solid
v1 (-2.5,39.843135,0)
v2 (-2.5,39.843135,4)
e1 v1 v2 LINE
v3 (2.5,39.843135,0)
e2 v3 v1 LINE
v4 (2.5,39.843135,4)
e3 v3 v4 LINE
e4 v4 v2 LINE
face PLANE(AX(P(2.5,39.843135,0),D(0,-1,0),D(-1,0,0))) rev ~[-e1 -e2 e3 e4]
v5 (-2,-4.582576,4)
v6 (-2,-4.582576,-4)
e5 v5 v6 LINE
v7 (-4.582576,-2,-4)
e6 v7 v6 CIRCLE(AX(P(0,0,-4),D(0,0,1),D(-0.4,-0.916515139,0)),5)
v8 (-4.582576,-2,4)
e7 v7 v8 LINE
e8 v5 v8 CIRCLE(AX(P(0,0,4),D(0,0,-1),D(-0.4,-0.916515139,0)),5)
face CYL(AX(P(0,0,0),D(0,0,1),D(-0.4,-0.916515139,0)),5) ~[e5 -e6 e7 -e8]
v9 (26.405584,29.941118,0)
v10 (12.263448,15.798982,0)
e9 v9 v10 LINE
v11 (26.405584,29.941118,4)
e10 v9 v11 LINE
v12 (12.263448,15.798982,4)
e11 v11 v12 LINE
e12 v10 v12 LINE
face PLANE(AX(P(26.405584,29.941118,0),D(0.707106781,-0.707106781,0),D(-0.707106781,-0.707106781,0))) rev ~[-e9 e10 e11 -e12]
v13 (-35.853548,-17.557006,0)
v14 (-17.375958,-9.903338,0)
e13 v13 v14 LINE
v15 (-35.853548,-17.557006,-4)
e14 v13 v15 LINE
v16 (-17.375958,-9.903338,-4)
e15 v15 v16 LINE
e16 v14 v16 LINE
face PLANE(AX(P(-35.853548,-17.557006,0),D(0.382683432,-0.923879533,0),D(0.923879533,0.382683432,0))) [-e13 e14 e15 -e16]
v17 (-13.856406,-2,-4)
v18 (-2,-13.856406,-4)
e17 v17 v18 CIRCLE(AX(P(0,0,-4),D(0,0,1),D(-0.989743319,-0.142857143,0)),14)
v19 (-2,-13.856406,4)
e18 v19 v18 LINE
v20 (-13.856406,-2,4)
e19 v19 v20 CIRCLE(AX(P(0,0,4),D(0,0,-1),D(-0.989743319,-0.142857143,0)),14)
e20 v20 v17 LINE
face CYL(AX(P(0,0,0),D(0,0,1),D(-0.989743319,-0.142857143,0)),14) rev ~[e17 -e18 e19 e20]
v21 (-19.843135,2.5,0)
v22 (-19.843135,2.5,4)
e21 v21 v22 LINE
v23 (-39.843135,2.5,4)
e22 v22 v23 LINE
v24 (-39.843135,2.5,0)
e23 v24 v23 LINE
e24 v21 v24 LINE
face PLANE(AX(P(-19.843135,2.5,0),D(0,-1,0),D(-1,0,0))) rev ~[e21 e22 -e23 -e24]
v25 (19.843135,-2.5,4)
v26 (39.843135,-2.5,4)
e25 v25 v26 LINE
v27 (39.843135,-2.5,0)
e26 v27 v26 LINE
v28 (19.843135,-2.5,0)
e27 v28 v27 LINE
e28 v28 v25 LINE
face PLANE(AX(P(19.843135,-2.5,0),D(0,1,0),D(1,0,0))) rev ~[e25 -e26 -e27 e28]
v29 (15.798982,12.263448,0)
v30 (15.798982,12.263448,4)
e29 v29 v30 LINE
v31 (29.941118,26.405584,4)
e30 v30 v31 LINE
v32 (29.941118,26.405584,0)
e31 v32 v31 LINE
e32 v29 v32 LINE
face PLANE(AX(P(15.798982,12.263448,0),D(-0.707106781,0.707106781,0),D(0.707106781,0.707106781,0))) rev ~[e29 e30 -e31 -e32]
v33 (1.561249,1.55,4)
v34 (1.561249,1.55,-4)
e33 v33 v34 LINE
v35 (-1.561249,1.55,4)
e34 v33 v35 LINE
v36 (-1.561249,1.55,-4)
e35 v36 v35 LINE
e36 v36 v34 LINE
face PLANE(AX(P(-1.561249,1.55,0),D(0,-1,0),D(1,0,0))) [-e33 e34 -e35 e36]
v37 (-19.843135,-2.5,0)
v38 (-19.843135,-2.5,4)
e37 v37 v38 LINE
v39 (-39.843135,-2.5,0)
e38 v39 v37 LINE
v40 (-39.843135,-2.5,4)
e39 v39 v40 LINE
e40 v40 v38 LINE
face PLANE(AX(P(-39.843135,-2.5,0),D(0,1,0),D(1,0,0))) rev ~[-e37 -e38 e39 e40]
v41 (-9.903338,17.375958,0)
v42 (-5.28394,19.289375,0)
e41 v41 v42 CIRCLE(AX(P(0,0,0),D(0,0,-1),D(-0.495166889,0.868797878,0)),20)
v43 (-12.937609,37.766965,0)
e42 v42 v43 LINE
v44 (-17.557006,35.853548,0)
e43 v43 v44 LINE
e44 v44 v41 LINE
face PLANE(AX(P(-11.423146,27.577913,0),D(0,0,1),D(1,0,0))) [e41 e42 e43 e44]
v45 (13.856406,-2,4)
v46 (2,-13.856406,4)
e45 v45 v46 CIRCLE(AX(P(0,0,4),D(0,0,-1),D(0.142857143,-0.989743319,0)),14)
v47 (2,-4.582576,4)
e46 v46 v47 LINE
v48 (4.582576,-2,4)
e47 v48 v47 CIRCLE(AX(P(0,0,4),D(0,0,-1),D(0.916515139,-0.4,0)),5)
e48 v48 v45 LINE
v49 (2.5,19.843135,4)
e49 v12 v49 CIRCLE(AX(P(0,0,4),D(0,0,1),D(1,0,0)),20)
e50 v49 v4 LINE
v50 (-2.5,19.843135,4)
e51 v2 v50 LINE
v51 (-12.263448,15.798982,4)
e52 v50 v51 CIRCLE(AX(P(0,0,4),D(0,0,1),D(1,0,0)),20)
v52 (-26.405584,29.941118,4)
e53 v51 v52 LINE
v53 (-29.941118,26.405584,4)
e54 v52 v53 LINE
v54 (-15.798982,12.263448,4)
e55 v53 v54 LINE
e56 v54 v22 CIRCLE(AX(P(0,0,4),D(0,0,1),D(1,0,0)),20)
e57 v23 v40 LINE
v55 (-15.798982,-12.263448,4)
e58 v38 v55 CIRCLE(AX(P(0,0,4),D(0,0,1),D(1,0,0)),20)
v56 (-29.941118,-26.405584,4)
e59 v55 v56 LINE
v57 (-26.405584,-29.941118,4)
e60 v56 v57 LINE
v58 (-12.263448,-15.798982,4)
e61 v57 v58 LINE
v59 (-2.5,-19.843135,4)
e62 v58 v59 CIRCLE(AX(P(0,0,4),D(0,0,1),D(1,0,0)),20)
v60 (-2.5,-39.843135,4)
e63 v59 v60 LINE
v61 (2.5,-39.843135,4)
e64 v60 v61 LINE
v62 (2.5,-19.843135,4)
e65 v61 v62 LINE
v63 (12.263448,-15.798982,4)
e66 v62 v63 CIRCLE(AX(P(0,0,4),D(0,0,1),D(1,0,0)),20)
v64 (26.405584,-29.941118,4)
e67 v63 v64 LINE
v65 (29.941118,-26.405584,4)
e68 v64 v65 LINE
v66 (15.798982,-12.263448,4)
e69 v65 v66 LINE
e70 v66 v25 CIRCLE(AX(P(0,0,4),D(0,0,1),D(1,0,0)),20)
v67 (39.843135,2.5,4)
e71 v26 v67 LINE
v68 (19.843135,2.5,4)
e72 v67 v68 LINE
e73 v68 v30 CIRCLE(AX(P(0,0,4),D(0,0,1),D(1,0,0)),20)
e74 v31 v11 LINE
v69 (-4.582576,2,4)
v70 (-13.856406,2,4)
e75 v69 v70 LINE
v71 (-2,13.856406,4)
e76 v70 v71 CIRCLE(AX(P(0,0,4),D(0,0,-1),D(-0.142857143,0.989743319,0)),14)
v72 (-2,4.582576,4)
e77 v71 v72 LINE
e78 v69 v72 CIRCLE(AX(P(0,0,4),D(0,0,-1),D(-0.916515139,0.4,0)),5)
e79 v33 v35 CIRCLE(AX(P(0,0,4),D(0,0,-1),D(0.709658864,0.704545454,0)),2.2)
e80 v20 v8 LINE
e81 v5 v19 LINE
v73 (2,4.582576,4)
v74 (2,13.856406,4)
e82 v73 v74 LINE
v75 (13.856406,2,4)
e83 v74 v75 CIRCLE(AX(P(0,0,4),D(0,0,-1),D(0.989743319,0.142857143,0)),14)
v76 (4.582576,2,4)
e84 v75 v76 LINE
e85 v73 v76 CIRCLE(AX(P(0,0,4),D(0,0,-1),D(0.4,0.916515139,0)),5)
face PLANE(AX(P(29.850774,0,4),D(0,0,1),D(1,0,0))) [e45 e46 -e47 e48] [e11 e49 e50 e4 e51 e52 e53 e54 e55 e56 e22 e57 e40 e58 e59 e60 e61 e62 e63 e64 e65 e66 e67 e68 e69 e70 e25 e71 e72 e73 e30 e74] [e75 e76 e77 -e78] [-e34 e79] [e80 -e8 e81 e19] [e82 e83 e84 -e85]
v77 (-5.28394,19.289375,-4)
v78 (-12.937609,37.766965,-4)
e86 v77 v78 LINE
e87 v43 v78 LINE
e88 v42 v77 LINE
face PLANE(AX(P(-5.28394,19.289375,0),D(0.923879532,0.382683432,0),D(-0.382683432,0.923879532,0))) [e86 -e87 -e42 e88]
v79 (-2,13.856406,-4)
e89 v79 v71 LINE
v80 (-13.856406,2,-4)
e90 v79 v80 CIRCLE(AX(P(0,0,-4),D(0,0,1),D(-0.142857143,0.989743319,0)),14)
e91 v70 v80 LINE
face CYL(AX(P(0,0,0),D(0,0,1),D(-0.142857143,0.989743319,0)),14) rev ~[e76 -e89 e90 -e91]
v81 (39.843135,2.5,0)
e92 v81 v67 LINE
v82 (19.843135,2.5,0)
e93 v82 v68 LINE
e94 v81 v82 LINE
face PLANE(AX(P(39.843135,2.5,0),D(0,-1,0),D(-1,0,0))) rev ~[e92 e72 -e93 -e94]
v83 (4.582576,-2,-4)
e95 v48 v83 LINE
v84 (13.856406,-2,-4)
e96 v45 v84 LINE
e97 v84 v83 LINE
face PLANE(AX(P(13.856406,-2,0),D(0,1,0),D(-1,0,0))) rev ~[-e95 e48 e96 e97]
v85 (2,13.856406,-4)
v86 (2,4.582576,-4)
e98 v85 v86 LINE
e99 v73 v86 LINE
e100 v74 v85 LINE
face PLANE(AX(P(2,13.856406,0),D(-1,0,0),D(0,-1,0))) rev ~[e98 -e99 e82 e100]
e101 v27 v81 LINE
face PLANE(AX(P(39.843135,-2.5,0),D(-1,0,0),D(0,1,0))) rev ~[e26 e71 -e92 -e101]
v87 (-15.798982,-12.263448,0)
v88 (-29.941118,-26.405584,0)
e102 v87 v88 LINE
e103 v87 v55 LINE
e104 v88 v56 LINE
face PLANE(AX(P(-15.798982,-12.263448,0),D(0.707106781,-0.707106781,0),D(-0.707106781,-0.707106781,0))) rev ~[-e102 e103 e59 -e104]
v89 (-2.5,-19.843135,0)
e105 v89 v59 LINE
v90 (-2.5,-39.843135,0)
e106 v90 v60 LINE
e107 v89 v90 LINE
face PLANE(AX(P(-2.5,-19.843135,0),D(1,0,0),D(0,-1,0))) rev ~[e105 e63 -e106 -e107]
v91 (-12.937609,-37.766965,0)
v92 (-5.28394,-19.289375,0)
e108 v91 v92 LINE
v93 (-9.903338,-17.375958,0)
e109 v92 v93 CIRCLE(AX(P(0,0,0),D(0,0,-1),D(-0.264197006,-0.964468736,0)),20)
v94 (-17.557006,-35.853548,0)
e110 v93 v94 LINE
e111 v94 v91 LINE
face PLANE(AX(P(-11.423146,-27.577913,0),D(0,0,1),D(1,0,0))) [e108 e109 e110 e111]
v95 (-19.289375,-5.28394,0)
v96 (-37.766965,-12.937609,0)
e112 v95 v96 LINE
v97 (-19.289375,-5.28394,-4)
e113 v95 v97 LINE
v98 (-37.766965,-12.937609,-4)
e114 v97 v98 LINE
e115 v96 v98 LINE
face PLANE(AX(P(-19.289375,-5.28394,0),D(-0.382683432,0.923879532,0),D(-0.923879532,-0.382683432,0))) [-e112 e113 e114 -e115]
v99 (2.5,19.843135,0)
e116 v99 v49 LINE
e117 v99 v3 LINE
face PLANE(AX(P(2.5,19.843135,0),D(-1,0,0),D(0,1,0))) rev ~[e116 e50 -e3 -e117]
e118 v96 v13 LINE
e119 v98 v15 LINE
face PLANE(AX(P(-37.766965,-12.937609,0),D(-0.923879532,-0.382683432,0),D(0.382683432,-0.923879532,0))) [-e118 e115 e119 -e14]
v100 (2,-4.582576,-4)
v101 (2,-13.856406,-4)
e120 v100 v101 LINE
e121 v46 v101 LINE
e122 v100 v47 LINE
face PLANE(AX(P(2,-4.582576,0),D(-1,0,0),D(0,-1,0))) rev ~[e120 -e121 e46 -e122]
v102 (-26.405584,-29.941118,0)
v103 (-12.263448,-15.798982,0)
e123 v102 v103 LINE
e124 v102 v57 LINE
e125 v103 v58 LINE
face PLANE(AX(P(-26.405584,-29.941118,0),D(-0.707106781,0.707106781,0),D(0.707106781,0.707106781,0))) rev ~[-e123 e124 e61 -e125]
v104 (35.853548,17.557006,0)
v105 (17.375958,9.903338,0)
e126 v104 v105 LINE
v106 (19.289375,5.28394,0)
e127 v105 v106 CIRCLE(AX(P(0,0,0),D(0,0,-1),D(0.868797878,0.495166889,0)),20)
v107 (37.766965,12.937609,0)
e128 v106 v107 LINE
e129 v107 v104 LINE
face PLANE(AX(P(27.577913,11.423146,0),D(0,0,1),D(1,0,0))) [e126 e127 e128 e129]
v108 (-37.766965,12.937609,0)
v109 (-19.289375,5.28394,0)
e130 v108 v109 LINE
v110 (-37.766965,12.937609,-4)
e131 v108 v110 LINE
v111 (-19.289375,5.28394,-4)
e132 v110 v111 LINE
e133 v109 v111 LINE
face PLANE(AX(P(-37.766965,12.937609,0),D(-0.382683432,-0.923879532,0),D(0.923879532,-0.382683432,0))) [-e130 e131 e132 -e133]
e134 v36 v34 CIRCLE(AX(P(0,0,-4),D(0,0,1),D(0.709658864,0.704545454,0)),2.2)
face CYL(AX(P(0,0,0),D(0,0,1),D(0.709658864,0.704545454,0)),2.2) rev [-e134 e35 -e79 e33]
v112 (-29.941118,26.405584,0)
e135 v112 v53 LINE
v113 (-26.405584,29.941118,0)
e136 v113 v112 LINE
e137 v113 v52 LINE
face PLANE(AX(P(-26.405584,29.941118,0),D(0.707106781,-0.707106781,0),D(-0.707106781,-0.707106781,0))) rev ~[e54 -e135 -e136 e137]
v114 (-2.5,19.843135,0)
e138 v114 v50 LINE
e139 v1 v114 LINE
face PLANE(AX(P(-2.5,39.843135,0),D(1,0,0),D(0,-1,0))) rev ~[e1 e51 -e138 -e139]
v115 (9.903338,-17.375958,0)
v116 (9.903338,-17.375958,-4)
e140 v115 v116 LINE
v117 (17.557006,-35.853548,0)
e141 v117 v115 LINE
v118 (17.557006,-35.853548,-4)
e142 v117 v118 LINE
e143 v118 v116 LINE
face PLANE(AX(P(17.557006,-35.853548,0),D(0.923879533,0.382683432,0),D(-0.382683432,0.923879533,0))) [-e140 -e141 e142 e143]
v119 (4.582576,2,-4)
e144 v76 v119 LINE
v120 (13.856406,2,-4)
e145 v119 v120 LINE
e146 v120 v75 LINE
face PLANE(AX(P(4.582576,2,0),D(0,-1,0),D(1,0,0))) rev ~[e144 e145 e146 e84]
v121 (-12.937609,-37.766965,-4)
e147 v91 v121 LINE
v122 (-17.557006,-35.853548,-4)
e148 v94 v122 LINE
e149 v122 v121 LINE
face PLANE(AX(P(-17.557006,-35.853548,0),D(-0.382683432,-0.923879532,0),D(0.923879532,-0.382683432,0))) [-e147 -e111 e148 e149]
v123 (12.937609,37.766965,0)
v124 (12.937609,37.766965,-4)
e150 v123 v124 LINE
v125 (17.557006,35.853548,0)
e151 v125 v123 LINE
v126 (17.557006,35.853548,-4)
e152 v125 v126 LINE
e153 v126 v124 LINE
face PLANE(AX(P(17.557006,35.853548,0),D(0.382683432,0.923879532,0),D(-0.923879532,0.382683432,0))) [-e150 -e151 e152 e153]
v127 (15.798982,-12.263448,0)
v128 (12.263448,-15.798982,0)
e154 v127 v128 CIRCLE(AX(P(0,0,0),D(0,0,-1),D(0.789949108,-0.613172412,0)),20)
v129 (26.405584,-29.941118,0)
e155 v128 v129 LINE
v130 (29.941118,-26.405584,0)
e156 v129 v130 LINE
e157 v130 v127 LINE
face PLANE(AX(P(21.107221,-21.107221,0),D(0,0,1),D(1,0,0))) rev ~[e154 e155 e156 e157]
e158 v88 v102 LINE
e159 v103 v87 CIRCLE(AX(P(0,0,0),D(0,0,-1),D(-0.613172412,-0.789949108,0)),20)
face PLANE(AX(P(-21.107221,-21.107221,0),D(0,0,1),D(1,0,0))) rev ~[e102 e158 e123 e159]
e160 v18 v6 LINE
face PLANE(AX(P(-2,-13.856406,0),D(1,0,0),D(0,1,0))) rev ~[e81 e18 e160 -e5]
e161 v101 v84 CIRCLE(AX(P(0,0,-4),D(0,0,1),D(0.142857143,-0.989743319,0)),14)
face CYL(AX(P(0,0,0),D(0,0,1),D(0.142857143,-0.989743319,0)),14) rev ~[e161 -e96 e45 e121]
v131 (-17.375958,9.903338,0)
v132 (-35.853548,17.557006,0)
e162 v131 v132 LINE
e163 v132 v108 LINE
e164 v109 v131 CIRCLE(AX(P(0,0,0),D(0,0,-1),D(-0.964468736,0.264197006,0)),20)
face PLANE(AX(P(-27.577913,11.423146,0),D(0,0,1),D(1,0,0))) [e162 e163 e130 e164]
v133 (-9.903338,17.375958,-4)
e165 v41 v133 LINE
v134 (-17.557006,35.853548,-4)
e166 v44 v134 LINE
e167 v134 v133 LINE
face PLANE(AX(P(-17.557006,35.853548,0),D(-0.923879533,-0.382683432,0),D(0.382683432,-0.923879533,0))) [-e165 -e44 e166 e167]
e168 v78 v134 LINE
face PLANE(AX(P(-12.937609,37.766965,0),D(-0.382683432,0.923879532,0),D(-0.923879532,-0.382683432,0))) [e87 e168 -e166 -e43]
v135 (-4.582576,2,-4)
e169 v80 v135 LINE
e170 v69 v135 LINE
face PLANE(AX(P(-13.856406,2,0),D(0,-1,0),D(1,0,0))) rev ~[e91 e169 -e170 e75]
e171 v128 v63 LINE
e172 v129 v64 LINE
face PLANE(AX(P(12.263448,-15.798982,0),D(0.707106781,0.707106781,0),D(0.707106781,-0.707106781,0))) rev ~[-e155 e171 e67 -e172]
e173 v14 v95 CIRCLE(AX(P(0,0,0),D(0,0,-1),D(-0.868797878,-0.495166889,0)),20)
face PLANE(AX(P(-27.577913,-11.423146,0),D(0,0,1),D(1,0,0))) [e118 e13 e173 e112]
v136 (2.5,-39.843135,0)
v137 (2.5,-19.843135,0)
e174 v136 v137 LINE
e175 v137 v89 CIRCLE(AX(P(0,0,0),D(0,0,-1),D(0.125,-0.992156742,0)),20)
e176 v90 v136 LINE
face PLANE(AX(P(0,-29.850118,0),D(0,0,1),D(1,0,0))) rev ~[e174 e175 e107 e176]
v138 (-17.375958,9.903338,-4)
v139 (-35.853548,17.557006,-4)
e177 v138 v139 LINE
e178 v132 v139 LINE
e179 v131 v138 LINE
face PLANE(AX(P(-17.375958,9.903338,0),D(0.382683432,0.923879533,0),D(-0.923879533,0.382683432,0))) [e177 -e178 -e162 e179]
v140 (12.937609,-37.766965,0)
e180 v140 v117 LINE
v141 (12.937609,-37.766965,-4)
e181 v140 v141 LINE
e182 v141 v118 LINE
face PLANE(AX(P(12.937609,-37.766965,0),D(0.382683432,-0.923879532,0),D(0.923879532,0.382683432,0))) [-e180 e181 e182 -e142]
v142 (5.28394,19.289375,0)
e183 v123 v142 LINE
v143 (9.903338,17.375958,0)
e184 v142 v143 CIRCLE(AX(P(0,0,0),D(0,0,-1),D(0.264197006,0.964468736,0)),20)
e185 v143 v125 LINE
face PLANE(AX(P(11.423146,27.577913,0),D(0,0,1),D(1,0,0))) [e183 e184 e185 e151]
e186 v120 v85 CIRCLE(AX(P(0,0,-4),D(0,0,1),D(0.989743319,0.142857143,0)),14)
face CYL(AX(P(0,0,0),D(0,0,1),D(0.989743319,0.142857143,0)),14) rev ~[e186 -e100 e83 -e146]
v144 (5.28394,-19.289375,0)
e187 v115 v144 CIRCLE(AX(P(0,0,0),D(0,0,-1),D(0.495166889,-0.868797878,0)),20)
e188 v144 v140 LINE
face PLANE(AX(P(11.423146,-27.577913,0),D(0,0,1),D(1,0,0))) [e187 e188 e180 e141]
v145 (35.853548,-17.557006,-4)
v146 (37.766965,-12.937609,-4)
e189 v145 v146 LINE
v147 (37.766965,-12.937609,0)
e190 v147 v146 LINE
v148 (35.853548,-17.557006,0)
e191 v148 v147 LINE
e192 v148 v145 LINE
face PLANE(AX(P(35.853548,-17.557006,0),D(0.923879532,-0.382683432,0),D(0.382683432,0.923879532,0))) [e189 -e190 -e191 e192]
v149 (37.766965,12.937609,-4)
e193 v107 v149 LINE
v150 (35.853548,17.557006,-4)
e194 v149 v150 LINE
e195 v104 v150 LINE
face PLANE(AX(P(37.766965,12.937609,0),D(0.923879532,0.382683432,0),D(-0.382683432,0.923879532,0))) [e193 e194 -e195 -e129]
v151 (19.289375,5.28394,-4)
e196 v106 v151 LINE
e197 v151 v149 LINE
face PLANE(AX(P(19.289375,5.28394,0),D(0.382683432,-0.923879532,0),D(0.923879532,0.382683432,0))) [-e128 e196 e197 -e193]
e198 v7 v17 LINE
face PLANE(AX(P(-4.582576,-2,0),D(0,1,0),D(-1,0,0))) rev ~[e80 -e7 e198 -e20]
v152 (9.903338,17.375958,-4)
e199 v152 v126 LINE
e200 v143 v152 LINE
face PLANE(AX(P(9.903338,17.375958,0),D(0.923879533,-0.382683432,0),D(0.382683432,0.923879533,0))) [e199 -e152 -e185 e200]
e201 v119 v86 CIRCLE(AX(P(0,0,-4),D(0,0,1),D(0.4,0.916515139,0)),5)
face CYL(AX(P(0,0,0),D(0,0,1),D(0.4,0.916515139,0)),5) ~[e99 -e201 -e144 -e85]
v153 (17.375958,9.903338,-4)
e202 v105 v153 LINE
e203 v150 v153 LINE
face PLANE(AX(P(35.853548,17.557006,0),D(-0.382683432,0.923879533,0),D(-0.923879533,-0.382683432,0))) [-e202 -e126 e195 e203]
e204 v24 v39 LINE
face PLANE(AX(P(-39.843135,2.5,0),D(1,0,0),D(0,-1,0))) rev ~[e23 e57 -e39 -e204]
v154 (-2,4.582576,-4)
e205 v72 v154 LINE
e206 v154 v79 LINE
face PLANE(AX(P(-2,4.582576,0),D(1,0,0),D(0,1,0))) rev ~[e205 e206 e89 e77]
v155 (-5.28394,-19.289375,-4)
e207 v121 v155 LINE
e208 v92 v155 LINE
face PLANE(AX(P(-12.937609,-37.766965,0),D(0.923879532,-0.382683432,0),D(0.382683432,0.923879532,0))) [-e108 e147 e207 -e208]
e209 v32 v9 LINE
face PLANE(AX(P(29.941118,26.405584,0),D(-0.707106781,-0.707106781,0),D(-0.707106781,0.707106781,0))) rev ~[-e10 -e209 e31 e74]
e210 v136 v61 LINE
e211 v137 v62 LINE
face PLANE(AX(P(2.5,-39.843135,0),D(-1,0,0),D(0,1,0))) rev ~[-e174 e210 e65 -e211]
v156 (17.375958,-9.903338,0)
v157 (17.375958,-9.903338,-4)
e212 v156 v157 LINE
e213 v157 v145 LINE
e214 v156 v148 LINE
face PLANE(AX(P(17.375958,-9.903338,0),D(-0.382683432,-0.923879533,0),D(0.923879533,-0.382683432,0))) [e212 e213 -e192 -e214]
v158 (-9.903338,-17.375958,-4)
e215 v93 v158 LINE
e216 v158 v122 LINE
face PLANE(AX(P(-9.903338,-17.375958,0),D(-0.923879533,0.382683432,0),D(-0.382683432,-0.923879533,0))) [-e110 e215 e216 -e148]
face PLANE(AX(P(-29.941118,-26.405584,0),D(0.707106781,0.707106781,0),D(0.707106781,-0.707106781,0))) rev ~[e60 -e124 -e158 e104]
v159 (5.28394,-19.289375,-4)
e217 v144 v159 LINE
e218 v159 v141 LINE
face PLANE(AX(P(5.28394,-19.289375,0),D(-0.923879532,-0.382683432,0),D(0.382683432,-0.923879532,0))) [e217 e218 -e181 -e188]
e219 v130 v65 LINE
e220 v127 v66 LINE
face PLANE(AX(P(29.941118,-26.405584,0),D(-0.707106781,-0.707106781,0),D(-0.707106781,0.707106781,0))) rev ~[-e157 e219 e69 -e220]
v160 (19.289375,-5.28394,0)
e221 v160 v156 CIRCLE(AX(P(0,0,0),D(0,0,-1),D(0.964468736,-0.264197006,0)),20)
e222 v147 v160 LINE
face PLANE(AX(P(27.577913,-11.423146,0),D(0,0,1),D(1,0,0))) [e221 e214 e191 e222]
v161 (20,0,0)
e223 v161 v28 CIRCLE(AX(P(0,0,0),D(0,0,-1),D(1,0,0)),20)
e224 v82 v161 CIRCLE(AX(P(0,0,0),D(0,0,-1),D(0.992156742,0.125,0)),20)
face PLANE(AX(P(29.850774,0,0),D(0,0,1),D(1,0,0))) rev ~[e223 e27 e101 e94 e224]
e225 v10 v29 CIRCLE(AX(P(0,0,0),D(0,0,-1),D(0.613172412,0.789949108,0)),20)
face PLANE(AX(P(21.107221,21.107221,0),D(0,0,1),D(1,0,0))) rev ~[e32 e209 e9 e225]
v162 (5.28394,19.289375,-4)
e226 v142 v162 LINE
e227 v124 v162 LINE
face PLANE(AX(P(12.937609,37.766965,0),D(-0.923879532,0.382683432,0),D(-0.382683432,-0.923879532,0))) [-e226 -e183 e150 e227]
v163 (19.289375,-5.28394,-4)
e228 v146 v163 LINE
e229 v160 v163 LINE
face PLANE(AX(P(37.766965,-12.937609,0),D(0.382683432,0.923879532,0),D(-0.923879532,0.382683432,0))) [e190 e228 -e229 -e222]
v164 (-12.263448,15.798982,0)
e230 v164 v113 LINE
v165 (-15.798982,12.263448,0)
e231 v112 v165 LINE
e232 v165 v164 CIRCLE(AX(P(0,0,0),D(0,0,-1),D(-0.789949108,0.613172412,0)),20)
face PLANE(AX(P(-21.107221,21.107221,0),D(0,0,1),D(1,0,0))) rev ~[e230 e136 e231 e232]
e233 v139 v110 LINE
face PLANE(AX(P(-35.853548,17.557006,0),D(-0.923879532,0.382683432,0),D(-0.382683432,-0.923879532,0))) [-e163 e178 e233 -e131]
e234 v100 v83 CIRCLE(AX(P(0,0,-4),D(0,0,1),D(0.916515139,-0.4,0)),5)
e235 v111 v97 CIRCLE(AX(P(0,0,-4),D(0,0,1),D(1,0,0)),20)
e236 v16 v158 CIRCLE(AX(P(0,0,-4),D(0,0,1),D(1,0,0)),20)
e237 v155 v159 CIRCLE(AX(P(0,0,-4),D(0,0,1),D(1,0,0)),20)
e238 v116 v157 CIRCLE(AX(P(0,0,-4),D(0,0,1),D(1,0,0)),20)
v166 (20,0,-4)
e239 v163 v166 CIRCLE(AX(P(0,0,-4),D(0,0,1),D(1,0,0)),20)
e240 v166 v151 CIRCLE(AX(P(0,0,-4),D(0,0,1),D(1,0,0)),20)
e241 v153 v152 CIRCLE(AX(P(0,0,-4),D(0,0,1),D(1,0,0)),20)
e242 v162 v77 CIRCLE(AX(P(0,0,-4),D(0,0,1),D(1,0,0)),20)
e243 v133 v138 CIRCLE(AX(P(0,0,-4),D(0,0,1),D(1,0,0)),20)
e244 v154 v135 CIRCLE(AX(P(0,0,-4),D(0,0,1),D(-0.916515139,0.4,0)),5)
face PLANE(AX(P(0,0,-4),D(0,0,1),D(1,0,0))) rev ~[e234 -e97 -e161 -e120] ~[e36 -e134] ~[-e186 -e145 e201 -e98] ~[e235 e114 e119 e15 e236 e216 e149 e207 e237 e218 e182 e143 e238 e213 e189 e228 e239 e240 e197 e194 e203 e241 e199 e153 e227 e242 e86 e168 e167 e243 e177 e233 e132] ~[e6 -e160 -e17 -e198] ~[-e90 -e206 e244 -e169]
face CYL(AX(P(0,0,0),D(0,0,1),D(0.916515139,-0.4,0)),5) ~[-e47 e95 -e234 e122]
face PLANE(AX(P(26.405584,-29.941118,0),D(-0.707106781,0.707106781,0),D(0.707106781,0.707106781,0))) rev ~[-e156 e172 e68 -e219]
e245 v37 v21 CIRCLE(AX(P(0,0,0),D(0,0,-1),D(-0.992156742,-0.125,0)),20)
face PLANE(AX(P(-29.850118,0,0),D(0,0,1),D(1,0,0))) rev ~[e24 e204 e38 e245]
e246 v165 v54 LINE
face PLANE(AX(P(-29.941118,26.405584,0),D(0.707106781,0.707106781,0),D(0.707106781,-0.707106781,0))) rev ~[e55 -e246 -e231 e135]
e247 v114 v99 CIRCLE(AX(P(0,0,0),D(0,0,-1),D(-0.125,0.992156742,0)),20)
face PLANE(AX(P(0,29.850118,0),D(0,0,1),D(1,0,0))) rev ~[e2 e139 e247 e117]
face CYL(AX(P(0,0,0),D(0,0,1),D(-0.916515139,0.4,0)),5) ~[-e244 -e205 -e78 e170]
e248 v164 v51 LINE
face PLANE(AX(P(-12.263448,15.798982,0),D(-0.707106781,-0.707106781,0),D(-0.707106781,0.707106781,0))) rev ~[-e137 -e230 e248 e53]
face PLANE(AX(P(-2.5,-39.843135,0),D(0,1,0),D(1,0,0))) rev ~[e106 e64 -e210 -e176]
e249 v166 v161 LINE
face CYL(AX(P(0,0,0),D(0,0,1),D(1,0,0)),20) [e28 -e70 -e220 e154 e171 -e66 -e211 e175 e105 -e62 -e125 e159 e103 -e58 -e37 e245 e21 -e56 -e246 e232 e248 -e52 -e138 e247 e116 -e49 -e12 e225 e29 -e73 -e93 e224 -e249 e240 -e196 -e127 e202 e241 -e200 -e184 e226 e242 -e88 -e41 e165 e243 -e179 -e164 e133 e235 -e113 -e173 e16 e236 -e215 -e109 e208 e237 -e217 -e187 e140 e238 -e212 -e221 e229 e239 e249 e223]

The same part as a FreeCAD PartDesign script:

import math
import FreeCAD as App
import Part
import Sketcher

V = App.Vector
Q = App.Units.Quantity

doc = App.newDocument("Part")
body = doc.addObject("PartDesign::Body", "Body")

# Sketch on XY plane
sketch1 = body.newObject("Sketcher::SketchObject", "Sketch")
sketch1.AttachmentSupport = (doc.getObject("XY_Plane"), [""])
sketch1.MapMode = "FlatFace"
sketch1.addGeometry(Part.Circle(V(0, 0, 0), V(0, 0, 1), 20), False)
sketch1.addConstraint(Sketcher.Constraint("Coincident", 0, 3, -1, 1))
sketch1.addConstraint(Sketcher.Constraint("Diameter", 0, Q("40 mm")))
pad1 = body.newObject("PartDesign::Pad", "Pad")
pad1.Profile = sketch1
pad1.Length = 8
pad1.Midplane = True

# Sketch on XY plane
sketch2 = body.newObject("Sketcher::SketchObject", "Sketch001")
sketch2.AttachmentSupport = (doc.getObject("XY_Plane"), [""])
sketch2.MapMode = "FlatFace"
sketch2.addGeometry(Part.LineSegment(V(1.561249, 1.55, 0), V(-1.561249, 1.55, 0)), False)
sketch2.addGeometry(Part.ArcOfCircle(Part.Circle(V(0, 0, 0), V(0, 0, 1), 2.2), math.radians(135.207166), math.radians(404.792834)), False)
sketch2.addConstraint(Sketcher.Constraint("Coincident", 0, 1, 1, 2))
sketch2.addConstraint(Sketcher.Constraint("Coincident", 1, 1, 0, 2))
sketch2.addConstraint(Sketcher.Constraint("Horizontal", 0))
sketch2.addConstraint(Sketcher.Constraint("Coincident", 1, 3, -1, 1))
sketch2.addConstraint(Sketcher.Constraint("Radius", 1, Q("2.2 mm")))
sketch2.addConstraint(Sketcher.Constraint("DistanceY", -1, 1, 0, 1, Q("1.55 mm")))
pocket1 = body.newObject("PartDesign::Pocket", "Pocket")
pocket1.Profile = sketch2
pocket1.Type = "ThroughAll"
pocket1.Midplane = True

# Sketch on XY plane
sketch3 = body.newObject("Sketcher::SketchObject", "Sketch002")
sketch3.AttachmentSupport = (doc.getObject("XY_Plane"), [""])
sketch3.MapMode = "FlatFace"
sketch3.addGeometry(Part.ArcOfCircle(Part.Circle(V(0, 0, 0), V(0, 0, 1), 14), math.radians(8.213211), math.radians(81.786789)), False)
sketch3.addGeometry(Part.LineSegment(V(2, 13.856406, 0), V(2, 4.582576, 0)), False)
sketch3.addGeometry(Part.ArcOfCircle(Part.Circle(V(0, 0, 0), V(0, 0, 1), 5), math.radians(23.578178), math.radians(66.421822)), False)
sketch3.addGeometry(Part.LineSegment(V(4.582576, 2, 0), V(13.856406, 2, 0)), False)
sketch3.addGeometry(Part.ArcOfCircle(Part.Circle(V(0, 0, 0), V(0, 0, 1), 14), math.radians(98.213211), math.radians(171.786789)), False)
sketch3.addGeometry(Part.LineSegment(V(-13.856406, 2, 0), V(-4.582576, 2, 0)), False)
sketch3.addGeometry(Part.ArcOfCircle(Part.Circle(V(0, 0, 0), V(0, 0, 1), 5), math.radians(113.578178), math.radians(156.421822)), False)
sketch3.addGeometry(Part.LineSegment(V(-2, 4.582576, 0), V(-2, 13.856406, 0)), False)
sketch3.addGeometry(Part.LineSegment(V(-4.582576, -2, 0), V(-13.856406, -2, 0)), False)
sketch3.addGeometry(Part.ArcOfCircle(Part.Circle(V(0, 0, 0), V(0, 0, 1), 14), math.radians(-171.786789), math.radians(-98.213211)), False)
sketch3.addGeometry(Part.LineSegment(V(-2, -13.856406, 0), V(-2, -4.582576, 0)), False)
sketch3.addGeometry(Part.ArcOfCircle(Part.Circle(V(0, 0, 0), V(0, 0, 1), 5), math.radians(-156.421822), math.radians(-113.578178)), False)
sketch3.addGeometry(Part.LineSegment(V(2, -4.582576, 0), V(2, -13.856406, 0)), False)
sketch3.addGeometry(Part.ArcOfCircle(Part.Circle(V(0, 0, 0), V(0, 0, 1), 14), math.radians(-81.786789), math.radians(-8.213211)), False)
sketch3.addGeometry(Part.LineSegment(V(13.856406, -2, 0), V(4.582576, -2, 0)), False)
sketch3.addGeometry(Part.ArcOfCircle(Part.Circle(V(0, 0, 0), V(0, 0, 1), 5), math.radians(-66.421822), math.radians(-23.578178)), False)
sketch3.addConstraint(Sketcher.Constraint("Coincident", 0, 2, 1, 1))
sketch3.addConstraint(Sketcher.Constraint("Coincident", 1, 2, 2, 2))
sketch3.addConstraint(Sketcher.Constraint("Coincident", 2, 1, 3, 1))
sketch3.addConstraint(Sketcher.Constraint("Coincident", 3, 2, 0, 1))
sketch3.addConstraint(Sketcher.Constraint("Coincident", 4, 2, 5, 1))
sketch3.addConstraint(Sketcher.Constraint("Coincident", 5, 2, 6, 2))
sketch3.addConstraint(Sketcher.Constraint("Coincident", 6, 1, 7, 1))
sketch3.addConstraint(Sketcher.Constraint("Coincident", 7, 2, 4, 1))
sketch3.addConstraint(Sketcher.Constraint("Coincident", 8, 2, 9, 1))
sketch3.addConstraint(Sketcher.Constraint("Coincident", 9, 2, 10, 1))
sketch3.addConstraint(Sketcher.Constraint("Coincident", 10, 2, 11, 2))
sketch3.addConstraint(Sketcher.Constraint("Coincident", 11, 1, 8, 1))
sketch3.addConstraint(Sketcher.Constraint("Coincident", 12, 2, 13, 1))
sketch3.addConstraint(Sketcher.Constraint("Coincident", 13, 2, 14, 1))
sketch3.addConstraint(Sketcher.Constraint("Coincident", 14, 2, 15, 2))
sketch3.addConstraint(Sketcher.Constraint("Coincident", 15, 1, 12, 1))
sketch3.addConstraint(Sketcher.Constraint("Vertical", 1))
sketch3.addConstraint(Sketcher.Constraint("Horizontal", 3))
sketch3.addConstraint(Sketcher.Constraint("Horizontal", 5))
sketch3.addConstraint(Sketcher.Constraint("Vertical", 7))
sketch3.addConstraint(Sketcher.Constraint("Horizontal", 8))
sketch3.addConstraint(Sketcher.Constraint("Vertical", 10))
sketch3.addConstraint(Sketcher.Constraint("Vertical", 12))
sketch3.addConstraint(Sketcher.Constraint("Horizontal", 14))
sketch3.addConstraint(Sketcher.Constraint("Coincident", 0, 3, -1, 1))
sketch3.addConstraint(Sketcher.Constraint("Coincident", 2, 3, -1, 1))
sketch3.addConstraint(Sketcher.Constraint("Coincident", 4, 3, -1, 1))
sketch3.addConstraint(Sketcher.Constraint("Coincident", 6, 3, -1, 1))
sketch3.addConstraint(Sketcher.Constraint("Coincident", 9, 3, -1, 1))
sketch3.addConstraint(Sketcher.Constraint("Coincident", 11, 3, -1, 1))
sketch3.addConstraint(Sketcher.Constraint("Coincident", 13, 3, -1, 1))
sketch3.addConstraint(Sketcher.Constraint("Coincident", 15, 3, -1, 1))
sketch3.addConstraint(Sketcher.Constraint("Equal", 0, 4))
sketch3.addConstraint(Sketcher.Constraint("Equal", 2, 6))
sketch3.addConstraint(Sketcher.Constraint("Equal", 4, 9))
sketch3.addConstraint(Sketcher.Constraint("Equal", 6, 11))
sketch3.addConstraint(Sketcher.Constraint("Equal", 9, 13))
sketch3.addConstraint(Sketcher.Constraint("Equal", 11, 15))
sketch3.addConstraint(Sketcher.Constraint("Horizontal", 3, 2, 4, 2))
sketch3.addConstraint(Sketcher.Constraint("Horizontal", 1, 2, 6, 1))
sketch3.addConstraint(Sketcher.Constraint("Horizontal", 9, 2, 12, 2))
sketch3.addConstraint(Sketcher.Constraint("Horizontal", 11, 1, 13, 2))
sketch3.addConstraint(Sketcher.Constraint("Vertical", 4, 2, 8, 2))
sketch3.addConstraint(Sketcher.Constraint("Vertical", 7, 2, 9, 2))
sketch3.addConstraint(Sketcher.Constraint("Equal", 14, 1))
sketch3.addConstraint(Sketcher.Constraint("Radius", 0, Q("14 mm")))
sketch3.addConstraint(Sketcher.Constraint("Radius", 2, Q("5 mm")))
sketch3.addConstraint(Sketcher.Constraint("DistanceX", -1, 1, 0, 2, Q("2 mm")))
pocket2 = body.newObject("PartDesign::Pocket", "Pocket001")
pocket2.Profile = sketch3
pocket2.Type = "ThroughAll"
pocket2.Midplane = True

# Sketch on XY plane
sketch4 = body.newObject("Sketcher::SketchObject", "Sketch003")
sketch4.AttachmentSupport = (doc.getObject("XY_Plane"), [""])
sketch4.MapMode = "FlatFace"
sketch4.addGeometry(Part.ArcOfCircle(Part.Circle(V(0, 0, 0), V(0, 0, 1), 20), math.radians(-7.180756), math.radians(0)), False)
sketch4.addGeometry(Part.LineSegment(V(19.843135, -2.5, 0), V(39.843135, -2.5, 0)), False)
sketch4.addGeometry(Part.LineSegment(V(39.843135, -2.5, 0), V(39.843135, 2.5, 0)), False)
sketch4.addGeometry(Part.LineSegment(V(39.843135, 2.5, 0), V(19.843135, 2.5, 0)), False)
sketch4.addGeometry(Part.ArcOfCircle(Part.Circle(V(0, 0, 0), V(0, 0, 1), 20), math.radians(0), math.radians(7.180756)), False)
sketch4.addGeometry(Part.LineSegment(V(26.405584, 29.941118, 0), V(12.263448, 15.798982, 0)), False)
sketch4.addGeometry(Part.ArcOfCircle(Part.Circle(V(0, 0, 0), V(0, 0, 1), 20), math.radians(37.819244), math.radians(52.180756)), False)
sketch4.addGeometry(Part.LineSegment(V(15.798982, 12.263448, 0), V(29.941118, 26.405584, 0)), False)
sketch4.addGeometry(Part.LineSegment(V(29.941118, 26.405584, 0), V(26.405584, 29.941118, 0)), False)
sketch4.addGeometry(Part.LineSegment(V(-2.5, 39.843135, 0), V(-2.5, 19.843135, 0)), False)
sketch4.addGeometry(Part.ArcOfCircle(Part.Circle(V(0, 0, 0), V(0, 0, 1), 20), math.radians(82.819244), math.radians(97.180756)), False)
sketch4.addGeometry(Part.LineSegment(V(2.5, 19.843135, 0), V(2.5, 39.843135, 0)), False)
sketch4.addGeometry(Part.LineSegment(V(2.5, 39.843135, 0), V(-2.5, 39.843135, 0)), False)
sketch4.addGeometry(Part.LineSegment(V(-29.941118, 26.405584, 0), V(-15.798982, 12.263448, 0)), False)
sketch4.addGeometry(Part.ArcOfCircle(Part.Circle(V(0, 0, 0), V(0, 0, 1), 20), math.radians(127.819244), math.radians(142.180756)), False)
sketch4.addGeometry(Part.LineSegment(V(-12.263448, 15.798982, 0), V(-26.405584, 29.941118, 0)), False)
sketch4.addGeometry(Part.LineSegment(V(-26.405584, 29.941118, 0), V(-29.941118, 26.405584, 0)), False)
sketch4.addGeometry(Part.LineSegment(V(-39.843135, -2.5, 0), V(-19.843135, -2.5, 0)), False)
sketch4.addGeometry(Part.ArcOfCircle(Part.Circle(V(0, 0, 0), V(0, 0, 1), 20), math.radians(172.819244), math.radians(187.180756)), False)
sketch4.addGeometry(Part.LineSegment(V(-19.843135, 2.5, 0), V(-39.843135, 2.5, 0)), False)
sketch4.addGeometry(Part.LineSegment(V(-39.843135, 2.5, 0), V(-39.843135, -2.5, 0)), False)
sketch4.addGeometry(Part.ArcOfCircle(Part.Circle(V(0, 0, 0), V(0, 0, 1), 20), math.radians(-142.180756), math.radians(-127.819244)), False)
sketch4.addGeometry(Part.LineSegment(V(-15.798982, -12.263448, 0), V(-29.941118, -26.405584, 0)), False)
sketch4.addGeometry(Part.LineSegment(V(-29.941118, -26.405584, 0), V(-26.405584, -29.941118, 0)), False)
sketch4.addGeometry(Part.LineSegment(V(-26.405584, -29.941118, 0), V(-12.263448, -15.798982, 0)), False)
sketch4.addGeometry(Part.ArcOfCircle(Part.Circle(V(0, 0, 0), V(0, 0, 1), 20), math.radians(-97.180756), math.radians(-82.819244)), False)
sketch4.addGeometry(Part.LineSegment(V(-2.5, -19.843135, 0), V(-2.5, -39.843135, 0)), False)
sketch4.addGeometry(Part.LineSegment(V(-2.5, -39.843135, 0), V(2.5, -39.843135, 0)), False)
sketch4.addGeometry(Part.LineSegment(V(2.5, -39.843135, 0), V(2.5, -19.843135, 0)), False)
sketch4.addGeometry(Part.ArcOfCircle(Part.Circle(V(0, 0, 0), V(0, 0, 1), 20), math.radians(-52.180756), math.radians(-37.819244)), False)
sketch4.addGeometry(Part.LineSegment(V(12.263448, -15.798982, 0), V(26.405584, -29.941118, 0)), False)
sketch4.addGeometry(Part.LineSegment(V(26.405584, -29.941118, 0), V(29.941118, -26.405584, 0)), False)
sketch4.addGeometry(Part.LineSegment(V(29.941118, -26.405584, 0), V(15.798982, -12.263448, 0)), False)
sketch4.addConstraint(Sketcher.Constraint("Coincident", 0, 1, 1, 1))
sketch4.addConstraint(Sketcher.Constraint("Coincident", 1, 2, 2, 1))
sketch4.addConstraint(Sketcher.Constraint("Coincident", 2, 2, 3, 1))
sketch4.addConstraint(Sketcher.Constraint("Coincident", 3, 2, 4, 2))
sketch4.addConstraint(Sketcher.Constraint("Tangent", 4, 1, 0, 2))
sketch4.addConstraint(Sketcher.Constraint("Coincident", 5, 2, 6, 2))
sketch4.addConstraint(Sketcher.Constraint("Coincident", 6, 1, 7, 1))
sketch4.addConstraint(Sketcher.Constraint("Coincident", 7, 2, 8, 1))
sketch4.addConstraint(Sketcher.Constraint("Coincident", 8, 2, 5, 1))
sketch4.addConstraint(Sketcher.Constraint("Coincident", 9, 2, 10, 2))
sketch4.addConstraint(Sketcher.Constraint("Coincident", 10, 1, 11, 1))
sketch4.addConstraint(Sketcher.Constraint("Coincident", 11, 2, 12, 1))
sketch4.addConstraint(Sketcher.Constraint("Coincident", 12, 2, 9, 1))
sketch4.addConstraint(Sketcher.Constraint("Coincident", 13, 2, 14, 2))
sketch4.addConstraint(Sketcher.Constraint("Coincident", 14, 1, 15, 1))
sketch4.addConstraint(Sketcher.Constraint("Coincident", 15, 2, 16, 1))
sketch4.addConstraint(Sketcher.Constraint("Coincident", 16, 2, 13, 1))
sketch4.addConstraint(Sketcher.Constraint("Coincident", 17, 2, 18, 2))
sketch4.addConstraint(Sketcher.Constraint("Coincident", 18, 1, 19, 1))
sketch4.addConstraint(Sketcher.Constraint("Coincident", 19, 2, 20, 1))
sketch4.addConstraint(Sketcher.Constraint("Coincident", 20, 2, 17, 1))
sketch4.addConstraint(Sketcher.Constraint("Coincident", 21, 1, 22, 1))
sketch4.addConstraint(Sketcher.Constraint("Coincident", 22, 2, 23, 1))
sketch4.addConstraint(Sketcher.Constraint("Coincident", 23, 2, 24, 1))
sketch4.addConstraint(Sketcher.Constraint("Coincident", 24, 2, 21, 2))
sketch4.addConstraint(Sketcher.Constraint("Coincident", 25, 1, 26, 1))
sketch4.addConstraint(Sketcher.Constraint("Coincident", 26, 2, 27, 1))
sketch4.addConstraint(Sketcher.Constraint("Coincident", 27, 2, 28, 1))
sketch4.addConstraint(Sketcher.Constraint("Coincident", 28, 2, 25, 2))
sketch4.addConstraint(Sketcher.Constraint("Coincident", 29, 1, 30, 1))
sketch4.addConstraint(Sketcher.Constraint("Coincident", 30, 2, 31, 1))
sketch4.addConstraint(Sketcher.Constraint("Coincident", 31, 2, 32, 1))
sketch4.addConstraint(Sketcher.Constraint("Coincident", 32, 2, 29, 2))
sketch4.addConstraint(Sketcher.Constraint("Horizontal", 1))
sketch4.addConstraint(Sketcher.Constraint("Vertical", 2))
sketch4.addConstraint(Sketcher.Constraint("Horizontal", 3))
sketch4.addConstraint(Sketcher.Constraint("Vertical", 9))
sketch4.addConstraint(Sketcher.Constraint("Vertical", 11))
sketch4.addConstraint(Sketcher.Constraint("Horizontal", 12))
sketch4.addConstraint(Sketcher.Constraint("Horizontal", 17))
sketch4.addConstraint(Sketcher.Constraint("Horizontal", 19))
sketch4.addConstraint(Sketcher.Constraint("Vertical", 20))
sketch4.addConstraint(Sketcher.Constraint("Vertical", 26))
sketch4.addConstraint(Sketcher.Constraint("Horizontal", 27))
sketch4.addConstraint(Sketcher.Constraint("Vertical", 28))
sketch4.addConstraint(Sketcher.Constraint("Coincident", 0, 3, -1, 1))
sketch4.addConstraint(Sketcher.Constraint("Coincident", 6, 3, -1, 1))
sketch4.addConstraint(Sketcher.Constraint("Coincident", 10, 3, -1, 1))
sketch4.addConstraint(Sketcher.Constraint("Coincident", 14, 3, -1, 1))
sketch4.addConstraint(Sketcher.Constraint("Coincident", 18, 3, -1, 1))
sketch4.addConstraint(Sketcher.Constraint("Coincident", 21, 3, -1, 1))
sketch4.addConstraint(Sketcher.Constraint("Coincident", 25, 3, -1, 1))
sketch4.addConstraint(Sketcher.Constraint("Coincident", 29, 3, -1, 1))
sketch4.addConstraint(Sketcher.Constraint("Equal", 0, 4))
sketch4.addConstraint(Sketcher.Constraint("Equal", 4, 6))
sketch4.addConstraint(Sketcher.Constraint("Equal", 6, 10))
sketch4.addConstraint(Sketcher.Constraint("Equal", 10, 14))
sketch4.addConstraint(Sketcher.Constraint("Equal", 14, 18))
sketch4.addConstraint(Sketcher.Constraint("Equal", 18, 21))
sketch4.addConstraint(Sketcher.Constraint("Equal", 21, 25))
sketch4.addConstraint(Sketcher.Constraint("Equal", 25, 29))
sketch4.addConstraint(Sketcher.Constraint("Symmetric", 1, 2, 19, 2, -1, 1))
sketch4.addConstraint(Sketcher.Constraint("Symmetric", 7, 2, 22, 2, -1, 1))
sketch4.addConstraint(Sketcher.Constraint("Symmetric", 8, 2, 23, 2, -1, 1))
sketch4.addConstraint(Sketcher.Constraint("Symmetric", 11, 2, 26, 2, -1, 1))
sketch4.addConstraint(Sketcher.Constraint("Symmetric", 15, 2, 30, 2, -1, 1))
sketch4.addConstraint(Sketcher.Constraint("Symmetric", 16, 2, 31, 2, -1, 1))
sketch4.addConstraint(Sketcher.Constraint("Symmetric", 8, 2, 15, 2, -2))
sketch4.addConstraint(Sketcher.Constraint("Symmetric", 7, 2, 16, 2, -2))
sketch4.addConstraint(Sketcher.Constraint("PointOnObject", 4, 1, -1))
sketch4.addConstraint(Sketcher.Constraint("Parallel", 5, 7))
sketch4.addConstraint(Sketcher.Constraint("Perpendicular", 7, 8))
sketch4.addConstraint(Sketcher.Constraint("Parallel", 8, 13))
sketch4.addConstraint(Sketcher.Constraint("Parallel", 13, 15))
sketch4.addConstraint(Sketcher.Constraint("Perpendicular", 15, 16))
sketch4.addConstraint(Sketcher.Constraint("Parallel", 16, 22))
sketch4.addConstraint(Sketcher.Constraint("Perpendicular", 23, 24))
sketch4.addConstraint(Sketcher.Constraint("Perpendicular", 24, 30))
sketch4.addConstraint(Sketcher.Constraint("Perpendicular", 31, 32))
sketch4.addConstraint(Sketcher.Constraint("Horizontal", 9, 2, 10, 1))
sketch4.addConstraint(Sketcher.Constraint("Horizontal", 1, 2, 17, 2))
sketch4.addConstraint(Sketcher.Constraint("Horizontal", 3, 2, 18, 1))
sketch4.addConstraint(Sketcher.Constraint("Horizontal", 25, 1, 28, 2))
sketch4.addConstraint(Sketcher.Constraint("Equal", 27, 2))
sketch4.addConstraint(Sketcher.Constraint("Equal", 19, 9))
sketch4.addConstraint(Sketcher.Constraint("Equal", 5, 7))
sketch4.addConstraint(Sketcher.Constraint("Radius", 0, Q("20 mm")))
sketch4.addConstraint(Sketcher.Constraint("DistanceX", 1, 1, 1, 2, Q("20 mm")))
sketch4.addConstraint(Sketcher.Constraint("DistanceX", 12, 2, 12, 1, Q("5 mm")))
sketch4.addConstraint(Sketcher.Constraint("Distance", 5, Q("20 mm")))
sketch4.addConstraint(Sketcher.Constraint("Distance", 8, Q("5 mm")))
pad2 = body.newObject("PartDesign::Pad", "Pad001")
pad2.Profile = sketch4
pad2.Length = 4

# Sketch on XY plane
sketch5 = body.newObject("Sketcher::SketchObject", "Sketch004")
sketch5.AttachmentSupport = (doc.getObject("XY_Plane"), [""])
sketch5.MapMode = "FlatFace"
sketch5.addGeometry(Part.LineSegment(V(-17.557006, 35.853548, 0), V(-9.903338, 17.375958, 0)), False)
sketch5.addGeometry(Part.ArcOfCircle(Part.Circle(V(0, 0, 0), V(0, 0, 1), 20), math.radians(105.319244), math.radians(119.680756)), False)
sketch5.addGeometry(Part.LineSegment(V(-5.28394, 19.289375, 0), V(-12.937609, 37.766965, 0)), False)
sketch5.addGeometry(Part.LineSegment(V(-12.937609, 37.766965, 0), V(-17.557006, 35.853548, 0)), False)
sketch5.addGeometry(Part.LineSegment(V(-37.766965, 12.937609, 0), V(-19.289375, 5.28394, 0)), False)
sketch5.addGeometry(Part.ArcOfCircle(Part.Circle(V(0, 0, 0), V(0, 0, 1), 20), math.radians(150.319244), math.radians(164.680756)), False)
sketch5.addGeometry(Part.LineSegment(V(-17.375958, 9.903338, 0), V(-35.853548, 17.557006, 0)), False)
sketch5.addGeometry(Part.LineSegment(V(-35.853548, 17.557006, 0), V(-37.766965, 12.937609, 0)), False)
sketch5.addGeometry(Part.ArcOfCircle(Part.Circle(V(0, 0, 0), V(0, 0, 1), 20), math.radians(-164.680756), math.radians(-150.319244)), False)
sketch5.addGeometry(Part.LineSegment(V(-19.289375, -5.28394, 0), V(-37.766965, -12.937609, 0)), False)
sketch5.addGeometry(Part.LineSegment(V(-37.766965, -12.937609, 0), V(-35.853548, -17.557006, 0)), False)
sketch5.addGeometry(Part.LineSegment(V(-35.853548, -17.557006, 0), V(-17.375958, -9.903338, 0)), False)
sketch5.addGeometry(Part.ArcOfCircle(Part.Circle(V(0, 0, 0), V(0, 0, 1), 20), math.radians(-119.680756), math.radians(-105.319244)), False)
sketch5.addGeometry(Part.LineSegment(V(-9.903338, -17.375958, 0), V(-17.557006, -35.853548, 0)), False)
sketch5.addGeometry(Part.LineSegment(V(-17.557006, -35.853548, 0), V(-12.937609, -37.766965, 0)), False)
sketch5.addGeometry(Part.LineSegment(V(-12.937609, -37.766965, 0), V(-5.28394, -19.289375, 0)), False)
sketch5.addGeometry(Part.ArcOfCircle(Part.Circle(V(0, 0, 0), V(0, 0, 1), 20), math.radians(-74.680756), math.radians(-60.319244)), False)
sketch5.addGeometry(Part.LineSegment(V(5.28394, -19.289375, 0), V(12.937609, -37.766965, 0)), False)
sketch5.addGeometry(Part.LineSegment(V(12.937609, -37.766965, 0), V(17.557006, -35.853548, 0)), False)
sketch5.addGeometry(Part.LineSegment(V(17.557006, -35.853548, 0), V(9.903338, -17.375958, 0)), False)
sketch5.addGeometry(Part.ArcOfCircle(Part.Circle(V(0, 0, 0), V(0, 0, 1), 20), math.radians(-29.680756), math.radians(-15.319244)), False)
sketch5.addGeometry(Part.LineSegment(V(17.375958, -9.903338, 0), V(35.853548, -17.557006, 0)), False)
sketch5.addGeometry(Part.LineSegment(V(35.853548, -17.557006, 0), V(37.766965, -12.937609, 0)), False)
sketch5.addGeometry(Part.LineSegment(V(37.766965, -12.937609, 0), V(19.289375, -5.28394, 0)), False)
sketch5.addGeometry(Part.LineSegment(V(35.853548, 17.557006, 0), V(17.375958, 9.903338, 0)), False)
sketch5.addGeometry(Part.ArcOfCircle(Part.Circle(V(0, 0, 0), V(0, 0, 1), 20), math.radians(15.319244), math.radians(29.680756)), False)
sketch5.addGeometry(Part.LineSegment(V(19.289375, 5.28394, 0), V(37.766965, 12.937609, 0)), False)
sketch5.addGeometry(Part.LineSegment(V(37.766965, 12.937609, 0), V(35.853548, 17.557006, 0)), False)
sketch5.addGeometry(Part.LineSegment(V(12.937609, 37.766965, 0), V(5.28394, 19.289375, 0)), False)
sketch5.addGeometry(Part.ArcOfCircle(Part.Circle(V(0, 0, 0), V(0, 0, 1), 20), math.radians(60.319244), math.radians(74.680756)), False)
sketch5.addGeometry(Part.LineSegment(V(9.903338, 17.375958, 0), V(17.557006, 35.853548, 0)), False)
sketch5.addGeometry(Part.LineSegment(V(17.557006, 35.853548, 0), V(12.937609, 37.766965, 0)), False)
sketch5.addConstraint(Sketcher.Constraint("Coincident", 0, 2, 1, 2))
sketch5.addConstraint(Sketcher.Constraint("Coincident", 1, 1, 2, 1))
sketch5.addConstraint(Sketcher.Constraint("Coincident", 2, 2, 3, 1))
sketch5.addConstraint(Sketcher.Constraint("Coincident", 3, 2, 0, 1))
sketch5.addConstraint(Sketcher.Constraint("Coincident", 4, 2, 5, 2))
sketch5.addConstraint(Sketcher.Constraint("Coincident", 5, 1, 6, 1))
sketch5.addConstraint(Sketcher.Constraint("Coincident", 6, 2, 7, 1))
sketch5.addConstraint(Sketcher.Constraint("Coincident", 7, 2, 4, 1))
sketch5.addConstraint(Sketcher.Constraint("Coincident", 8, 1, 9, 1))
sketch5.addConstraint(Sketcher.Constraint("Coincident", 9, 2, 10, 1))
sketch5.addConstraint(Sketcher.Constraint("Coincident", 10, 2, 11, 1))
sketch5.addConstraint(Sketcher.Constraint("Coincident", 11, 2, 8, 2))
sketch5.addConstraint(Sketcher.Constraint("Coincident", 12, 1, 13, 1))
sketch5.addConstraint(Sketcher.Constraint("Coincident", 13, 2, 14, 1))
sketch5.addConstraint(Sketcher.Constraint("Coincident", 14, 2, 15, 1))
sketch5.addConstraint(Sketcher.Constraint("Coincident", 15, 2, 12, 2))
sketch5.addConstraint(Sketcher.Constraint("Coincident", 16, 1, 17, 1))
sketch5.addConstraint(Sketcher.Constraint("Coincident", 17, 2, 18, 1))
sketch5.addConstraint(Sketcher.Constraint("Coincident", 18, 2, 19, 1))
sketch5.addConstraint(Sketcher.Constraint("Coincident", 19, 2, 16, 2))
sketch5.addConstraint(Sketcher.Constraint("Coincident", 20, 1, 21, 1))
sketch5.addConstraint(Sketcher.Constraint("Coincident", 21, 2, 22, 1))
sketch5.addConstraint(Sketcher.Constraint("Coincident", 22, 2, 23, 1))
sketch5.addConstraint(Sketcher.Constraint("Coincident", 23, 2, 20, 2))
sketch5.addConstraint(Sketcher.Constraint("Coincident", 24, 2, 25, 2))
sketch5.addConstraint(Sketcher.Constraint("Coincident", 25, 1, 26, 1))
sketch5.addConstraint(Sketcher.Constraint("Coincident", 26, 2, 27, 1))
sketch5.addConstraint(Sketcher.Constraint("Coincident", 27, 2, 24, 1))
sketch5.addConstraint(Sketcher.Constraint("Coincident", 28, 2, 29, 2))
sketch5.addConstraint(Sketcher.Constraint("Coincident", 29, 1, 30, 1))
sketch5.addConstraint(Sketcher.Constraint("Coincident", 30, 2, 31, 1))
sketch5.addConstraint(Sketcher.Constraint("Coincident", 31, 2, 28, 1))
sketch5.addConstraint(Sketcher.Constraint("Coincident", 1, 3, -1, 1))
sketch5.addConstraint(Sketcher.Constraint("Coincident", 5, 3, -1, 1))
sketch5.addConstraint(Sketcher.Constraint("Coincident", 8, 3, -1, 1))
sketch5.addConstraint(Sketcher.Constraint("Coincident", 12, 3, -1, 1))
sketch5.addConstraint(Sketcher.Constraint("Coincident", 16, 3, -1, 1))
sketch5.addConstraint(Sketcher.Constraint("Coincident", 20, 3, -1, 1))
sketch5.addConstraint(Sketcher.Constraint("Coincident", 25, 3, -1, 1))
sketch5.addConstraint(Sketcher.Constraint("Coincident", 29, 3, -1, 1))
sketch5.addConstraint(Sketcher.Constraint("Equal", 1, 5))
sketch5.addConstraint(Sketcher.Constraint("Equal", 5, 8))
sketch5.addConstraint(Sketcher.Constraint("Equal", 8, 12))
sketch5.addConstraint(Sketcher.Constraint("Equal", 12, 16))
sketch5.addConstraint(Sketcher.Constraint("Equal", 16, 20))
sketch5.addConstraint(Sketcher.Constraint("Equal", 20, 25))
sketch5.addConstraint(Sketcher.Constraint("Equal", 25, 29))
sketch5.addConstraint(Sketcher.Constraint("Symmetric", 2, 2, 17, 2, -1, 1))
sketch5.addConstraint(Sketcher.Constraint("Symmetric", 3, 2, 18, 2, -1, 1))
sketch5.addConstraint(Sketcher.Constraint("Symmetric", 6, 2, 21, 2, -1, 1))
sketch5.addConstraint(Sketcher.Constraint("Symmetric", 7, 2, 22, 2, -1, 1))
sketch5.addConstraint(Sketcher.Constraint("Symmetric", 9, 2, 26, 2, -1, 1))
sketch5.addConstraint(Sketcher.Constraint("Symmetric", 10, 2, 27, 2, -1, 1))
sketch5.addConstraint(Sketcher.Constraint("Symmetric", 13, 2, 30, 2, -1, 1))
sketch5.addConstraint(Sketcher.Constraint("Symmetric", 14, 2, 31, 2, -1, 1))
sketch5.addConstraint(Sketcher.Constraint("Symmetric", 14, 2, 17, 2, -2))
sketch5.addConstraint(Sketcher.Constraint("Symmetric", 13, 2, 18, 2, -2))
sketch5.addConstraint(Sketcher.Constraint("Symmetric", 10, 2, 21, 2, -2))
sketch5.addConstraint(Sketcher.Constraint("Symmetric", 9, 2, 22, 2, -2))
sketch5.addConstraint(Sketcher.Constraint("Parallel", 0, 2))
sketch5.addConstraint(Sketcher.Constraint("Perpendicular", 2, 3))
sketch5.addConstraint(Sketcher.Constraint("Parallel", 4, 6))
sketch5.addConstraint(Sketcher.Constraint("Perpendicular", 6, 7))
sketch5.addConstraint(Sketcher.Constraint("Parallel", 3, 9))
sketch5.addConstraint(Sketcher.Constraint("Perpendicular", 9, 10))
sketch5.addConstraint(Sketcher.Constraint("Perpendicular", 10, 11))
sketch5.addConstraint(Sketcher.Constraint("Parallel", 7, 13))
sketch5.addConstraint(Sketcher.Constraint("Perpendicular", 14, 15))
sketch5.addConstraint(Sketcher.Constraint("Perpendicular", 11, 17))
sketch5.addConstraint(Sketcher.Constraint("Perpendicular", 18, 19))
sketch5.addConstraint(Sketcher.Constraint("Perpendicular", 15, 21))
sketch5.addConstraint(Sketcher.Constraint("Perpendicular", 22, 23))
sketch5.addConstraint(Sketcher.Constraint("Perpendicular", 19, 24))
sketch5.addConstraint(Sketcher.Constraint("Parallel", 24, 26))
sketch5.addConstraint(Sketcher.Constraint("Perpendicular", 23, 28))
sketch5.addConstraint(Sketcher.Constraint("Parallel", 28, 30))
sketch5.addConstraint(Sketcher.Constraint("Equal", 0, 2))
sketch5.addConstraint(Sketcher.Constraint("Equal", 2, 4))
sketch5.addConstraint(Sketcher.Constraint("Equal", 4, 6))
sketch5.addConstraint(Sketcher.Constraint("Equal", 3, 7))
sketch5.addConstraint(Sketcher.Constraint("Radius", 1, Q("20 mm")))
sketch5.addConstraint(Sketcher.Constraint("Distance", 0, Q("20 mm")))
sketch5.addConstraint(Sketcher.Constraint("Distance", 3, Q("5 mm")))
sketch5.addConstraint(Sketcher.Constraint("Angle", 0, Q("-67.5 deg")))
pad3 = body.newObject("PartDesign::Pad", "Pad002")
pad3.Profile = sketch5
pad3.Length = 4
pad3.Reversed = True

doc.recompute()
